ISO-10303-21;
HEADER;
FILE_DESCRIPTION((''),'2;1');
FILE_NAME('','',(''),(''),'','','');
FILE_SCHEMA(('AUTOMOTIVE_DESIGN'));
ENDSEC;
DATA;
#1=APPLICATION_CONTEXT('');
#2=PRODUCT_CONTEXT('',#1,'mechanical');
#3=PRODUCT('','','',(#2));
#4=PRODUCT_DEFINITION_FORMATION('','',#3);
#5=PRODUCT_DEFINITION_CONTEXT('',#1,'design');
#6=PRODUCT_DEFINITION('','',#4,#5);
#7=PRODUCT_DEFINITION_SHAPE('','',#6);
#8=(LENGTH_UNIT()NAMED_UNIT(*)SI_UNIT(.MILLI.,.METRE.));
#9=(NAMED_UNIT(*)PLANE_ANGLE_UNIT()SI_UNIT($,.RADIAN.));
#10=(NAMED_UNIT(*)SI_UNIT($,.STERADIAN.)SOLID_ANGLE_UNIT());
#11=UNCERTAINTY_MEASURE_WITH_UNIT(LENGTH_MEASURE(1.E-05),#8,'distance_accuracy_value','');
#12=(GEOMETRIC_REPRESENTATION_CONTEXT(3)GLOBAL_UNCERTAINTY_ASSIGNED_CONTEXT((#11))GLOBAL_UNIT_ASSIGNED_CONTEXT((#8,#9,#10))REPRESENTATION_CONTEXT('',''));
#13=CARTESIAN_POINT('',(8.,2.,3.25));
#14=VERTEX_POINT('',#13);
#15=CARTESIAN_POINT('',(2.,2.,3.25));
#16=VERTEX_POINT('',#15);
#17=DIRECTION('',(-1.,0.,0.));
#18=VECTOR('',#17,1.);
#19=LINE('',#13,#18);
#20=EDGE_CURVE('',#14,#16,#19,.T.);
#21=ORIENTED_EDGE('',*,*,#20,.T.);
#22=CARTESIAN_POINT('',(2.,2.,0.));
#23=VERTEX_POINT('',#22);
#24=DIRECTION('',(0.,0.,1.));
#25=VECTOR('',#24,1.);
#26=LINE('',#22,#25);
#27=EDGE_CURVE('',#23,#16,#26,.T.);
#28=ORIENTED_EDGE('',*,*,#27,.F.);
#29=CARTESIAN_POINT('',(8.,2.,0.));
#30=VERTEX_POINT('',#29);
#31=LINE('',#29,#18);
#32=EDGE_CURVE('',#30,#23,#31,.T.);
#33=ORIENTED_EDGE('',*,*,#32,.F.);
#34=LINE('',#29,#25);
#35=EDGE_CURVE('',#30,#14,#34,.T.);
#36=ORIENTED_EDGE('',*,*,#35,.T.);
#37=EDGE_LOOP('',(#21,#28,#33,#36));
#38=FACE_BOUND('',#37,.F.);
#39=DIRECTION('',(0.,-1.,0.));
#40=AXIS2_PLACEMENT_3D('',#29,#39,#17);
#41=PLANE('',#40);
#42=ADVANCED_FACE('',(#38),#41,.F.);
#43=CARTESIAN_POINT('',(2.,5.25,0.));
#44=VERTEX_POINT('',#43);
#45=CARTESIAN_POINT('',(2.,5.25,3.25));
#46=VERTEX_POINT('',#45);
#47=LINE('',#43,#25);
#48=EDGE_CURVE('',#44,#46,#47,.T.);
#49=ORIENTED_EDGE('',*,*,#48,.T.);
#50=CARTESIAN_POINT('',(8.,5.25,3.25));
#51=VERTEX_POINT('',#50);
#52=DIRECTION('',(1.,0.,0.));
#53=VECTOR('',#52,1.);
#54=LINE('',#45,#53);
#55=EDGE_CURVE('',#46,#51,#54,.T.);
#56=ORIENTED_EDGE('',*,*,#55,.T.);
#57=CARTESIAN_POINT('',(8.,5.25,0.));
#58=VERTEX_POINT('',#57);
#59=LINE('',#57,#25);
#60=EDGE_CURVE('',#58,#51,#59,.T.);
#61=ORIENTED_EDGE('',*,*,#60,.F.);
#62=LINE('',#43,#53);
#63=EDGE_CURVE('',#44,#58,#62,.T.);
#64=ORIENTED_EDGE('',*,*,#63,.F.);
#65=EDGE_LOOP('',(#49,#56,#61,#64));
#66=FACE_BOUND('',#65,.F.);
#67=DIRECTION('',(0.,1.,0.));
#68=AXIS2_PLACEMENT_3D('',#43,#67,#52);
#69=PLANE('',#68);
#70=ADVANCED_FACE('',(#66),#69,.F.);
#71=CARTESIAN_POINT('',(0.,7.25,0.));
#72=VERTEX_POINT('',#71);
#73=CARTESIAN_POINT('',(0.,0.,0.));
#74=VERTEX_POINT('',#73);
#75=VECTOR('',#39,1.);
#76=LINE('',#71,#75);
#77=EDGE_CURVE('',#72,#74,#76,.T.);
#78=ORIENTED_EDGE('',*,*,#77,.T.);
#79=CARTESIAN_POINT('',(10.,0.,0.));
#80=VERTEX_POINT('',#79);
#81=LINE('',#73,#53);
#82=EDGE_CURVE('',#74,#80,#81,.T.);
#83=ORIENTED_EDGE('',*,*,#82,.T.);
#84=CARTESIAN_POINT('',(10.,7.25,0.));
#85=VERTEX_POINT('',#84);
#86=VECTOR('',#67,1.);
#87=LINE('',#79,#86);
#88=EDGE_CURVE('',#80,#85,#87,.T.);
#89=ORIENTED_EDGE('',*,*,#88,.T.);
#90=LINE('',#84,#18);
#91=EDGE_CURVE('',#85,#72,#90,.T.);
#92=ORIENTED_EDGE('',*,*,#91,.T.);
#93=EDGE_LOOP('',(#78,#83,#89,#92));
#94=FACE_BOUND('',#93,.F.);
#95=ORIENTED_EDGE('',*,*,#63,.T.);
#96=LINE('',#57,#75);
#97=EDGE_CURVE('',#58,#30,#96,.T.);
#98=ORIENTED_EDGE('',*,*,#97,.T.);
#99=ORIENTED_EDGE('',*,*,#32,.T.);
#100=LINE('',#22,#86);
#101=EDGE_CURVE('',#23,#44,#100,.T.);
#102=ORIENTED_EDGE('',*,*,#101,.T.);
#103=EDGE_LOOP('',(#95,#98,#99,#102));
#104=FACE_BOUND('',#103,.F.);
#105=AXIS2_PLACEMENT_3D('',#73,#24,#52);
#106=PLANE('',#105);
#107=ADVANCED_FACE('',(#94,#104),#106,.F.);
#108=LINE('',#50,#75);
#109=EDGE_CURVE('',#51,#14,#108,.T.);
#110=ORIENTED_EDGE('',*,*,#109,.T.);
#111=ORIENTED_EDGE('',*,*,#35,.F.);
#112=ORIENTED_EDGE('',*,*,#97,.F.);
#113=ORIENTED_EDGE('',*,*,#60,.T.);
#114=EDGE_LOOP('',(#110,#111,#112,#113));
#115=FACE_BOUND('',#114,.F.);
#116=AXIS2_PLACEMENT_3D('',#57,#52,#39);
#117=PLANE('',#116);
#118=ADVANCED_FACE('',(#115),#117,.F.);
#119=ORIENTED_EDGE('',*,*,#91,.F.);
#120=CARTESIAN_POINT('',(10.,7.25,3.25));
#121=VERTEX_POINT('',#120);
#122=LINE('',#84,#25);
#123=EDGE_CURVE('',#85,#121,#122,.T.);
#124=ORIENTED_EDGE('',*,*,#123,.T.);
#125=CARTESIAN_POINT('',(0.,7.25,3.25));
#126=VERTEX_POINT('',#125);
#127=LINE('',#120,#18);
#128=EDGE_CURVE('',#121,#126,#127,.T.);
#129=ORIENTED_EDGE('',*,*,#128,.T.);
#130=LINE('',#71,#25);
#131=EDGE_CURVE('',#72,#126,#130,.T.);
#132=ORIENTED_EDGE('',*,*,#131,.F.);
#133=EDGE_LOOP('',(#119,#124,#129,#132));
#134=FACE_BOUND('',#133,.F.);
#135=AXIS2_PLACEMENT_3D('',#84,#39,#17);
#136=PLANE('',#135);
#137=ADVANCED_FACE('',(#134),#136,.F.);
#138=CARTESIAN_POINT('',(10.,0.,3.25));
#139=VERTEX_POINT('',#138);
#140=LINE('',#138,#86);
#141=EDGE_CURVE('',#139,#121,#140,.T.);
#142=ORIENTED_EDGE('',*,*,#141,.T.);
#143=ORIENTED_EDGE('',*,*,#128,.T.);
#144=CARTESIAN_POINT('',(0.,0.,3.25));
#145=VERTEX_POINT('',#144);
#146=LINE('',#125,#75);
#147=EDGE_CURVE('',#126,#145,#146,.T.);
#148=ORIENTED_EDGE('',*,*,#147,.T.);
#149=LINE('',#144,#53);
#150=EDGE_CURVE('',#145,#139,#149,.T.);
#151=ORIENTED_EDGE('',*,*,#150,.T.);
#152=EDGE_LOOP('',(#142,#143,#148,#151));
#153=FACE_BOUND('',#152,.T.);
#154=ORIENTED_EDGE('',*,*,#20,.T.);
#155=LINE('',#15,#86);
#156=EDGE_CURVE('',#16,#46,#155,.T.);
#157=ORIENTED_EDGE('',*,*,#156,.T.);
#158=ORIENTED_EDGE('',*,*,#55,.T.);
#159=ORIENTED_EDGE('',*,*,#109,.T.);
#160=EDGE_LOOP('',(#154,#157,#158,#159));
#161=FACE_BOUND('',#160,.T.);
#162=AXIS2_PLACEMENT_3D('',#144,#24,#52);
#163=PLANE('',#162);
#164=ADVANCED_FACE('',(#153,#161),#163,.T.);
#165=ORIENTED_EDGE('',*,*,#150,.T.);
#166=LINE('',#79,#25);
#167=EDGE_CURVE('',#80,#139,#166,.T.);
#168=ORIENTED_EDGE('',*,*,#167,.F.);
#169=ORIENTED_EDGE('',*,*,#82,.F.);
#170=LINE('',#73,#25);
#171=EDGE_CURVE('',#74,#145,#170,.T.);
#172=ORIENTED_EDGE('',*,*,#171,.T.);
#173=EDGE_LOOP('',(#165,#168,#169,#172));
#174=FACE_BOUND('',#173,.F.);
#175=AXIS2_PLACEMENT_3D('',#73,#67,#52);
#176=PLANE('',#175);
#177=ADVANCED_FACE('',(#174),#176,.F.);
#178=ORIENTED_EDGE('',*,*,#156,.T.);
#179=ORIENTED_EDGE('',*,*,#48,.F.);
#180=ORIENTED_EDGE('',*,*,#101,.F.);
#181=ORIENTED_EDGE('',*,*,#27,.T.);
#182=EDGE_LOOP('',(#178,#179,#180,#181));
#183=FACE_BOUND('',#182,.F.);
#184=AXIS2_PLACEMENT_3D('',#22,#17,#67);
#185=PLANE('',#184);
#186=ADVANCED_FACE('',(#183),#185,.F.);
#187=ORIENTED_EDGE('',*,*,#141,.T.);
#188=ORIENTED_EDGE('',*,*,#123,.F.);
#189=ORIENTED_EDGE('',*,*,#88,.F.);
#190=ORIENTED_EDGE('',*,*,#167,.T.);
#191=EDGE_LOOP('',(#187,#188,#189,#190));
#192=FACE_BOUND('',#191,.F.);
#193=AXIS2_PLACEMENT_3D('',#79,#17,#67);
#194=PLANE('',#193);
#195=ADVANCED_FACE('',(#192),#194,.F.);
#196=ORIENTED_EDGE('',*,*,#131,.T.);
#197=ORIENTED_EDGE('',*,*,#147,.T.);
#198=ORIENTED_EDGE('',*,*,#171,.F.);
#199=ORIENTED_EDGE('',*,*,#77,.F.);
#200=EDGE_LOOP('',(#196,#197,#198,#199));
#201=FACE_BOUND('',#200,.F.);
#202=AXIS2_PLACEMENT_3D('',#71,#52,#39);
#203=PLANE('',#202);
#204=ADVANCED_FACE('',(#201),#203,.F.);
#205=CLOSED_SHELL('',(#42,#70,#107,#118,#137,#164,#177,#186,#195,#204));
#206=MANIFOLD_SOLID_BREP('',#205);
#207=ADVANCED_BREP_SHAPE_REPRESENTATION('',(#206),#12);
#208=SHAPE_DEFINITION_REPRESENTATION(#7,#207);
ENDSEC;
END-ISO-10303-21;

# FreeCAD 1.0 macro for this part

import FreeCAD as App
import Part
import Sketcher
from FreeCAD import Vector

doc = App.newDocument("Part")
body = doc.addObject("PartDesign::Body", "Body")

# Sketch on XY plane
sketch1 = body.newObject("Sketcher::SketchObject", "Sketch")
sketch1.AttachmentSupport = (doc.getObject("XY_Plane"), [""])
sketch1.MapMode = "FlatFace"
sketch1.addGeometry([
    Part.LineSegment(Vector(0, 7.2, 0), Vector(0, 0, 0)),  # 0
    Part.LineSegment(Vector(0, 0, 0), Vector(10, 0, 0)),  # 1
    Part.LineSegment(Vector(10, 0, 0), Vector(10, 7.2, 0)),  # 2
    Part.LineSegment(Vector(10, 7.2, 0), Vector(0, 7.2, 0)),  # 3
    Part.LineSegment(Vector(2, 2, 0), Vector(2, 5.2, 0)),  # 4
    Part.LineSegment(Vector(2, 5.2, 0), Vector(8, 5.2, 0)),  # 5
    Part.LineSegment(Vector(8, 5.2, 0), Vector(8, 2, 0)),  # 6
    Part.LineSegment(Vector(8, 2, 0), Vector(2, 2, 0)),  # 7
], False)
sketch1.addConstraint([
    Sketcher.Constraint("Coincident", 0, 2, 1, 1),
    Sketcher.Constraint("Coincident", 1, 2, 2, 1),
    Sketcher.Constraint("Coincident", 2, 2, 3, 1),
    Sketcher.Constraint("Coincident", 3, 2, 0, 1),
    Sketcher.Constraint("Coincident", 4, 2, 5, 1),
    Sketcher.Constraint("Coincident", 5, 2, 6, 1),
    Sketcher.Constraint("Coincident", 6, 2, 7, 1),
    Sketcher.Constraint("Coincident", 7, 2, 4, 1),
    Sketcher.Constraint("Vertical", 0),
    Sketcher.Constraint("Horizontal", 1),
    Sketcher.Constraint("Vertical", 2),
    Sketcher.Constraint("Horizontal", 3),
    Sketcher.Constraint("Vertical", 4),
    Sketcher.Constraint("Horizontal", 5),
    Sketcher.Constraint("Vertical", 6),
    Sketcher.Constraint("Horizontal", 7),
    Sketcher.Constraint("Coincident", 0, 2, -1, 1),
    Sketcher.Constraint("DistanceX", 1, 1, 1, 2, 10.0),
    Sketcher.Constraint("DistanceX", -1, 1, 4, 2, 2.0),
    Sketcher.Constraint("DistanceY", -1, 1, 6, 2, 2.0),
    Sketcher.Constraint("DistanceY", 4, 2, 3, 2, 2.0),
    Sketcher.Constraint("DistanceX", 5, 2, 2, 2, 2.0),
    Sketcher.Constraint("DistanceY", 0, 2, 0, 1, 7.25),
])
pad1 = body.newObject("PartDesign::Pad", "Pad")
pad1.Profile = sketch1
pad1.Length = 3.25

doc.recompute()
